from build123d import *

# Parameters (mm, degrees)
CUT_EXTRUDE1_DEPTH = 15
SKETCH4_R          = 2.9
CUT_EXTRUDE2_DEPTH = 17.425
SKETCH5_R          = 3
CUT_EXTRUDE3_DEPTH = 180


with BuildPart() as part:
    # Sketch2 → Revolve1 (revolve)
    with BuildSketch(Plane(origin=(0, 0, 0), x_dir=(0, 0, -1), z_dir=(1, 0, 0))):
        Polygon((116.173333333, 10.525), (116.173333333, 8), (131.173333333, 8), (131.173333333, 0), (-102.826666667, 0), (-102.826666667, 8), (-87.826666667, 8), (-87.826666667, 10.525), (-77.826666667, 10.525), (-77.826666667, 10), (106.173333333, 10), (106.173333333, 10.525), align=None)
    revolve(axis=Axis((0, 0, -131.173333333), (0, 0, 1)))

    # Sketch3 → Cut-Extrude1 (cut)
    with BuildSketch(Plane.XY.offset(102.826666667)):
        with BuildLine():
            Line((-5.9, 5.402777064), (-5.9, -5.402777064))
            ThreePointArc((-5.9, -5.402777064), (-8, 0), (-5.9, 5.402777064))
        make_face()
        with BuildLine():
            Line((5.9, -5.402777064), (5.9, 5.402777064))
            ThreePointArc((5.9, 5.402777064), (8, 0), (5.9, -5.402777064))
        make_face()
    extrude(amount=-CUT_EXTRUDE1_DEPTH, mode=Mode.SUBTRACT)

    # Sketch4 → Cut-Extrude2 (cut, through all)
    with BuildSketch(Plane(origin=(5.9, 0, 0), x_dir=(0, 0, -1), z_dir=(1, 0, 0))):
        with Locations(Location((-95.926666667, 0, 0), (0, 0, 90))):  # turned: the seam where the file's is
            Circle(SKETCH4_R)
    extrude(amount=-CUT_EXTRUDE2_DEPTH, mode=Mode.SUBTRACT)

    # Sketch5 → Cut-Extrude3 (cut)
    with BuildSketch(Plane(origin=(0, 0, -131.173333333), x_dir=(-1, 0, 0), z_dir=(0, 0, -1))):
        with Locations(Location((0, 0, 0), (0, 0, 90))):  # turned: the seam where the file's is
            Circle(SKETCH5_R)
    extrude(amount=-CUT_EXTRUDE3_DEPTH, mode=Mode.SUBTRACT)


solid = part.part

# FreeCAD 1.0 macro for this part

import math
import FreeCAD as App
import Part
import Sketcher
Q = App.Units.Quantity


def add_polygon(sketch, points):
    """Adds a closed chain of lines whose ends are joined by coincident constraints."""
    first, n = sketch.GeometryCount, len(points)
    for a, b in zip(points, points[1:] + points[:1]):
        sketch.addGeometry(Part.LineSegment(App.Vector(*a, 0), App.Vector(*b, 0)), False)
    for i in range(n):
        sketch.addConstraint(Sketcher.Constraint("Coincident", first + i, 2, first + (i + 1) % n, 1))

doc = App.newDocument("Part")
body = doc.addObject("PartDesign::Body", "Body")

sketch1 = body.newObject("Sketcher::SketchObject", "Sketch")
sketch1.AttachmentSupport = (doc.getObject("YZ_Plane"), [""])
sketch1.MapMode = "FlatFace"
add_polygon(sketch1, [(8, -116.173333), (10.525, -116.173333), (10.525, -106.173333), (10, -106.173333), (10, 77.826667), (10.525, 77.826667), (10.525, 87.826667), (8, 87.826667), (8, 102.826667), (0, 102.826667), (0, -131.173333), (8, -131.173333)])
sketch1.addConstraint([
    Sketcher.Constraint("Horizontal", 0),
    Sketcher.Constraint("Vertical", 1),
    Sketcher.Constraint("Horizontal", 2),
    Sketcher.Constraint("Vertical", 3),
    Sketcher.Constraint("Horizontal", 4),
    Sketcher.Constraint("Vertical", 5),
    Sketcher.Constraint("Horizontal", 6),
    Sketcher.Constraint("Vertical", 7),
    Sketcher.Constraint("Horizontal", 8),
    Sketcher.Constraint("Vertical", 9),
    Sketcher.Constraint("Horizontal", 10),
    Sketcher.Constraint("Vertical", 11),
    Sketcher.Constraint("PointOnObject", 8, 2, -2),
    Sketcher.Constraint("Vertical", 1, 2, 4, 2),
    Sketcher.Constraint("Vertical", 7, 2, 10, 2),
    Sketcher.Constraint("Equal", 1, 5),
    Sketcher.Constraint("Equal", 7, 11),
    Sketcher.Constraint("DistanceX", 8, 2, 8, 1, Q("8 mm")),
    Sketcher.Constraint("DistanceY", 1, 1, 1, 2, Q("10 mm")),
    Sketcher.Constraint("DistanceY", 3, 1, 3, 2, Q("184 mm")),
    Sketcher.Constraint("DistanceY", 7, 1, 7, 2, Q("15 mm")),
    Sketcher.Constraint("DistanceX", -1, 1, 2, 2, Q("10 mm")),
    Sketcher.Constraint("DistanceX", 0, 1, 0, 2, Q("2.525 mm")),
    Sketcher.Constraint("DistanceY", 0, 2, -1, 1, Q("116.173333 mm")),
])
revolution = body.newObject("PartDesign::Revolution", "Revolution")
revolution.Profile = sketch1
revolution.ReferenceAxis = (sketch1, ["V_Axis"])
revolution.Angle = 360

sketch2 = body.newObject("Sketcher::SketchObject", "Sketch001")
sketch2.AttachmentSupport = (doc.getObject("XY_Plane"), [""])
sketch2.MapMode = "FlatFace"
sketch2.AttachmentOffset = App.Placement(App.Vector(0, 0, 102.826667), App.Rotation())
sketch2.addGeometry([
    Part.LineSegment(App.Vector(-5.9, -5.402777, 0), App.Vector(-5.9, 5.402777, 0)),
    Part.ArcOfCircle(Part.Circle(App.Vector(0, 0, 0), App.Vector(0, 0, 1), 8), math.radians(137.518887), math.radians(222.481113)),
    Part.LineSegment(App.Vector(5.9, 5.402777, 0), App.Vector(5.9, -5.402777, 0)),
    Part.ArcOfCircle(Part.Circle(App.Vector(0, 0, 0), App.Vector(0, 0, 1), 8), math.radians(-42.481113), math.radians(42.481113)),
], False)
sketch2.addConstraint([
    Sketcher.Constraint("Coincident", 0, 1, 1, 2),
    Sketcher.Constraint("Coincident", 1, 1, 0, 2),
    Sketcher.Constraint("Coincident", 2, 1, 3, 2),
    Sketcher.Constraint("Coincident", 3, 1, 2, 2),
    Sketcher.Constraint("Vertical", 0),
    Sketcher.Constraint("Vertical", 2),
    Sketcher.Constraint("Coincident", 1, 3, -1, 1),
    Sketcher.Constraint("Coincident", 3, 3, -1, 1),
    Sketcher.Constraint("Equal", 1, 3),
    Sketcher.Constraint("Horizontal", 1, 1, 2, 1),
    Sketcher.Constraint("Radius", 1, Q("8 mm")),
    Sketcher.Constraint("DistanceX", 0, 1, -1, 1, Q("5.9 mm")),
])
pocket1 = body.newObject("PartDesign::Pocket", "Pocket")
pocket1.Profile = sketch2
pocket1.Length = 15

sketch3 = body.newObject("Sketcher::SketchObject", "Sketch002")
sketch3.AttachmentSupport = (doc.getObject("YZ_Plane"), [""])
sketch3.MapMode = "FlatFace"
sketch3.AttachmentOffset = App.Placement(App.Vector(0, 0, 5.9), App.Rotation())
sketch3.addGeometry(Part.Circle(App.Vector(0, 95.926667, 0), App.Vector(0, 0, 1), 2.9), False)
sketch3.addConstraint([
    Sketcher.Constraint("PointOnObject", 0, 3, -2),
    Sketcher.Constraint("Diameter", 0, Q("5.8 mm")),
    Sketcher.Constraint("DistanceY", -1, 1, 0, 3, Q("95.926667 mm")),
])
pocket2 = body.newObject("PartDesign::Pocket", "Pocket001")
pocket2.Profile = sketch3
pocket2.Type = "ThroughAll"

sketch4 = body.newObject("Sketcher::SketchObject", "Sketch003")
sketch4.AttachmentSupport = (doc.getObject("XY_Plane"), [""])
sketch4.MapMode = "FlatFace"
sketch4.AttachmentOffset = App.Placement(App.Vector(0, 0, -131.173333), App.Rotation())
sketch4.addGeometry(Part.Circle(App.Vector(0, 0, 0), App.Vector(0, 0, 1), 3), False)
sketch4.addConstraint([
    Sketcher.Constraint("Coincident", 0, 3, -1, 1),
    Sketcher.Constraint("Diameter", 0, Q("6 mm")),
])
pocket3 = body.newObject("PartDesign::Pocket", "Pocket002")
pocket3.Profile = sketch4
pocket3.Length = 180
pocket3.Reversed = True

doc.recompute()
